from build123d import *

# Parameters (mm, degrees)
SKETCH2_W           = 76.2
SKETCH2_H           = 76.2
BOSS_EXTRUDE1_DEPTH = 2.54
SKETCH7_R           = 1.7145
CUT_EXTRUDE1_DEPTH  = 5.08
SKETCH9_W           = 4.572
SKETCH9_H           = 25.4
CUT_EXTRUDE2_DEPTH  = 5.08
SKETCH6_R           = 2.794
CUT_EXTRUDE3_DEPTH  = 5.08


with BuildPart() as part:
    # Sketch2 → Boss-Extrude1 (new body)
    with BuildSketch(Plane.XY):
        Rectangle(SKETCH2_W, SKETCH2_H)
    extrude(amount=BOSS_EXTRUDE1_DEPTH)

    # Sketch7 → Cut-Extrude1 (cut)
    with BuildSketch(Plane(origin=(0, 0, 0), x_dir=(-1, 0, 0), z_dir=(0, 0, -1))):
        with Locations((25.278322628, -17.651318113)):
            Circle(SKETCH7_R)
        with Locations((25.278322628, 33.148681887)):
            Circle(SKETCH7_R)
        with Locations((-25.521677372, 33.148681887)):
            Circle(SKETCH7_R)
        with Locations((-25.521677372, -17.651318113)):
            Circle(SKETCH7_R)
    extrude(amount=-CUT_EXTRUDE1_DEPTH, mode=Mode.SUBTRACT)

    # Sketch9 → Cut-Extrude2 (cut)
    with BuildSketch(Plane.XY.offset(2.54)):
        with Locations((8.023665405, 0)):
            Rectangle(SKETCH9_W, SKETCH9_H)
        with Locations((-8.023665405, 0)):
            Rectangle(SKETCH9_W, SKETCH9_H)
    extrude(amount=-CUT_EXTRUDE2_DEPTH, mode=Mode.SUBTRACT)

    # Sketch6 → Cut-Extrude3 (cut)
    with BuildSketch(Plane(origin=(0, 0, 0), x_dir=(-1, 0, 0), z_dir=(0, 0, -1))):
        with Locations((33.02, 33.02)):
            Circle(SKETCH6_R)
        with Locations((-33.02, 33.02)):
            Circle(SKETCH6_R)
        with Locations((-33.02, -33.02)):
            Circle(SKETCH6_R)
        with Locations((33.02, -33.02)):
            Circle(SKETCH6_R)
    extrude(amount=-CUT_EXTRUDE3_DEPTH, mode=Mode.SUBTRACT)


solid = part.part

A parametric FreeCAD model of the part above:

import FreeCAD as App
import Part
import Sketcher

V = App.Vector
Q = App.Units.Quantity

doc = App.newDocument("Part")
body = doc.addObject("PartDesign::Body", "Body")

# Sketch on XY plane
sketch1 = body.newObject("Sketcher::SketchObject", "Sketch")
sketch1.AttachmentSupport = (doc.getObject("XY_Plane"), [""])
sketch1.MapMode = "FlatFace"
sketch1.addGeometry([
    Part.LineSegment(V(-38, 38, 0), V(-38, -38, 0)),
    Part.LineSegment(V(-38, -38, 0), V(38, -38, 0)),
    Part.LineSegment(V(38, -38, 0), V(38, 38, 0)),
    Part.LineSegment(V(38, 38, 0), V(-38, 38, 0)),
], False)
sketch1.addConstraint([
    Sketcher.Constraint("Coincident", 0, 2, 1, 1),
    Sketcher.Constraint("Coincident", 1, 2, 2, 1),
    Sketcher.Constraint("Coincident", 2, 2, 3, 1),
    Sketcher.Constraint("Coincident", 3, 2, 0, 1),
    Sketcher.Constraint("Vertical", 0),
    Sketcher.Constraint("Horizontal", 1),
    Sketcher.Constraint("Vertical", 2),
    Sketcher.Constraint("Horizontal", 3),
    Sketcher.Constraint("Symmetric", 0, 2, 2, 2, -1, 1),
    Sketcher.Constraint("Equal", 3, 0),
    Sketcher.Constraint("DistanceX", 1, 1, 1, 2, Q("3 in")),
])
pad1 = body.newObject("PartDesign::Pad", "Pad")
pad1.Profile = sketch1
pad1.Length = Q("0.1 in")

# Sketch on XY plane
sketch2 = body.newObject("Sketcher::SketchObject", "Sketch001")
sketch2.AttachmentSupport = (doc.getObject("XY_Plane"), [""])
sketch2.MapMode = "FlatFace"
sketch2.addGeometry([
    Part.Circle(V(-25.3, -17.7, 0), V(0, 0, 1), 1.7),
    Part.Circle(V(-25.3, 33.1, 0), V(0, 0, 1), 1.7),
    Part.Circle(V(25.5, 33.1, 0), V(0, 0, 1), 1.7),
    Part.Circle(V(25.5, -17.7, 0), V(0, 0, 1), 1.7),
], False)
sketch2.addConstraint([
    Sketcher.Constraint("Equal", 0, 1),
    Sketcher.Constraint("Equal", 1, 2),
    Sketcher.Constraint("Equal", 2, 3),
    Sketcher.Constraint("Horizontal", 1, 3, 2, 3),
    Sketcher.Constraint("Horizontal", 0, 3, 3, 3),
    Sketcher.Constraint("Vertical", 0, 3, 1, 3),
    Sketcher.Constraint("Vertical", 2, 3, 3, 3),
    Sketcher.Constraint("Diameter", 0, Q("0.135 in")),
    Sketcher.Constraint("DistanceY", 0, 3, 1, 3, Q("2 in")),
    Sketcher.Constraint("DistanceX", 1, 3, 2, 3, Q("2 in")),
    Sketcher.Constraint("DistanceY", 0, 3, -1, 1, 17.651318),
    Sketcher.Constraint("DistanceX", 0, 3, -1, 1, 25.278323),
])
pocket1 = body.newObject("PartDesign::Pocket", "Pocket")
pocket1.Profile = sketch2
pocket1.Length = Q("0.2 in")
pocket1.Reversed = True

# Sketch on XY plane
sketch3 = body.newObject("Sketcher::SketchObject", "Sketch002")
sketch3.AttachmentSupport = (doc.getObject("XY_Plane"), [""])
sketch3.MapMode = "FlatFace"
sketch3.AttachmentOffset = App.Placement(V(0, 0, 0.1 * 25.4), App.Rotation())
sketch3.addGeometry([
    Part.LineSegment(V(5.7, 12.7, 0), V(5.7, -12.7, 0)),  # 0
    Part.LineSegment(V(5.7, -12.7, 0), V(10.3, -12.7, 0)),  # 1
    Part.LineSegment(V(10.3, -12.7, 0), V(10.3, 12.7, 0)),  # 2
    Part.LineSegment(V(10.3, 12.7, 0), V(5.7, 12.7, 0)),  # 3
    Part.LineSegment(V(-10.3, 12.7, 0), V(-10.3, -12.7, 0)),  # 4
    Part.LineSegment(V(-10.3, -12.7, 0), V(-5.7, -12.7, 0)),  # 5
    Part.LineSegment(V(-5.7, -12.7, 0), V(-5.7, 12.7, 0)),  # 6
    Part.LineSegment(V(-5.7, 12.7, 0), V(-10.3, 12.7, 0)),  # 7
], False)
sketch3.addConstraint([
    Sketcher.Constraint("Coincident", 0, 2, 1, 1),
    Sketcher.Constraint("Coincident", 1, 2, 2, 1),
    Sketcher.Constraint("Coincident", 2, 2, 3, 1),
    Sketcher.Constraint("Coincident", 3, 2, 0, 1),
    Sketcher.Constraint("Coincident", 4, 2, 5, 1),
    Sketcher.Constraint("Coincident", 5, 2, 6, 1),
    Sketcher.Constraint("Coincident", 6, 2, 7, 1),
    Sketcher.Constraint("Coincident", 7, 2, 4, 1),
    Sketcher.Constraint("Vertical", 0),
    Sketcher.Constraint("Horizontal", 1),
    Sketcher.Constraint("Vertical", 2),
    Sketcher.Constraint("Horizontal", 3),
    Sketcher.Constraint("Vertical", 4),
    Sketcher.Constraint("Horizontal", 5),
    Sketcher.Constraint("Vertical", 6),
    Sketcher.Constraint("Horizontal", 7),
    Sketcher.Constraint("Symmetric", 2, 2, 4, 2, -1, 1),
    Sketcher.Constraint("Symmetric", 0, 2, 6, 2, -1, 1),
    Sketcher.Constraint("Horizontal", 1, 2, 4, 2),
    Sketcher.Constraint("DistanceY", 0, 2, 0, 1, Q("1 in")),
    Sketcher.Constraint("DistanceX", 1, 1, 1, 2, Q("0.18 in")),
    Sketcher.Constraint("DistanceX", 4, 2, 0, 2, 16.047331),
])
pocket2 = body.newObject("PartDesign::Pocket", "Pocket001")
pocket2.Profile = sketch3
pocket2.Length = Q("0.2 in")

# Sketch on XY plane
sketch4 = body.newObject("Sketcher::SketchObject", "Sketch003")
sketch4.AttachmentSupport = (doc.getObject("XY_Plane"), [""])
sketch4.MapMode = "FlatFace"
sketch4.addGeometry([
    Part.Circle(V(-33, 33, 0), V(0, 0, 1), 2.8),
    Part.Circle(V(33, 33, 0), V(0, 0, 1), 2.8),
    Part.Circle(V(33, -33, 0), V(0, 0, 1), 2.8),
    Part.Circle(V(-33, -33, 0), V(0, 0, 1), 2.8),
], False)
sketch4.addConstraint([
    Sketcher.Constraint("Equal", 0, 1),
    Sketcher.Constraint("Equal", 1, 2),
    Sketcher.Constraint("Equal", 2, 3),
    Sketcher.Constraint("Symmetric", 0, 3, 2, 3, -1, 1),
    Sketcher.Constraint("Symmetric", 1, 3, 3, 3, -1, 1),
    Sketcher.Constraint("Symmetric", 0, 3, 1, 3, -2),
    Sketcher.Constraint("Diameter", 0, Q("0.22 in")),
    Sketcher.Constraint("DistanceX", 0, 3, -1, 1, Q("1.3 in")),
    Sketcher.Constraint("DistanceY", -1, 1, 0, 3, Q("1.3 in")),
])
pocket3 = body.newObject("PartDesign::Pocket", "Pocket002")
pocket3.Profile = sketch4
pocket3.Length = Q("0.2 in")
pocket3.Reversed = True

doc.recompute()
